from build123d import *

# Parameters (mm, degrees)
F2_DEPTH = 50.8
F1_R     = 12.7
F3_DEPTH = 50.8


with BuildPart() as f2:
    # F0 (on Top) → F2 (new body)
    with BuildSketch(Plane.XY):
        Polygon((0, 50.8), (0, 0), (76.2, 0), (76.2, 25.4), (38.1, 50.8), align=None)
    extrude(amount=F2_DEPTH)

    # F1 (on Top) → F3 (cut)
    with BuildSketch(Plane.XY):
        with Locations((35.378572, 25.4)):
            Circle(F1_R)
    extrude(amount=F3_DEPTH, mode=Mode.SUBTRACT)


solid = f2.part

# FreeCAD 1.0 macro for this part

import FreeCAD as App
import Part
import Sketcher
Q = App.Units.Quantity

doc = App.newDocument("Part")
body = doc.addObject("PartDesign::Body", "Body")

# Sketch on XY plane
sketch1 = doc.addObject("Sketcher::SketchObject", "Sketch")
body.addObject(sketch1)
sketch1.AttachmentSupport = (doc.XY_Plane, [""])
sketch1.MapMode = "FlatFace"
sketch1.addGeometry([
    Part.LineSegment(App.Vector(0, 51, 0), App.Vector(0, 0, 0)),  # 0
    Part.LineSegment(App.Vector(0, 0, 0), App.Vector(76, 0, 0)),  # 1
    Part.LineSegment(App.Vector(76, 0, 0), App.Vector(76, 25, 0)),  # 2
    Part.LineSegment(App.Vector(76, 25, 0), App.Vector(38, 51, 0)),  # 3
    Part.LineSegment(App.Vector(38, 51, 0), App.Vector(0, 51, 0)),  # 4
], False)
sketch1.addConstraint([
    Sketcher.Constraint("Coincident", 0, 2, 1, 1),
    Sketcher.Constraint("Coincident", 1, 2, 2, 1),
    Sketcher.Constraint("Coincident", 2, 2, 3, 1),
    Sketcher.Constraint("Coincident", 3, 2, 4, 1),
    Sketcher.Constraint("Coincident", 4, 2, 0, 1),
    Sketcher.Constraint("Vertical", 0),
    Sketcher.Constraint("Horizontal", 1),
    Sketcher.Constraint("Vertical", 2),
    Sketcher.Constraint("Horizontal", 4),
    Sketcher.Constraint("Coincident", 0, 2, -1, 1),
    Sketcher.Constraint("DistanceX", 1, 1, 1, 2, Q("3 in")),
    Sketcher.Constraint("DistanceY", 0, 2, 0, 1, Q("2 in")),
    Sketcher.Constraint("DistanceY", 2, 1, 2, 2, Q("1 in")),
    Sketcher.Constraint("DistanceX", 4, 2, 4, 1, Q("1.5 in")),
])
pad1 = doc.addObject("PartDesign::Pad", "Pad")
body.addObject(pad1)
pad1.Profile = sketch1
pad1.Length = Q("2 in")

# Sketch on XY plane
sketch2 = doc.addObject("Sketcher::SketchObject", "Sketch001")
body.addObject(sketch2)
sketch2.AttachmentSupport = (doc.XY_Plane, [""])
sketch2.MapMode = "FlatFace"
sketch2.addGeometry(Part.Circle(App.Vector(35, 25, 0), App.Vector(0, 0, 1), 13), False)
sketch2.addConstraint([
    Sketcher.Constraint("Diameter", 0, Q("1 in")),
    Sketcher.Constraint("DistanceY", -1, 1, 0, 3, Q("1 in")),
    Sketcher.Constraint("DistanceX", -1, 1, 0, 3, 35.378572),
])
pocket1 = doc.addObject("PartDesign::Pocket", "Pocket")
body.addObject(pocket1)
pocket1.Profile = sketch2
pocket1.Length = Q("2 in")
pocket1.Reversed = True

doc.recompute()
